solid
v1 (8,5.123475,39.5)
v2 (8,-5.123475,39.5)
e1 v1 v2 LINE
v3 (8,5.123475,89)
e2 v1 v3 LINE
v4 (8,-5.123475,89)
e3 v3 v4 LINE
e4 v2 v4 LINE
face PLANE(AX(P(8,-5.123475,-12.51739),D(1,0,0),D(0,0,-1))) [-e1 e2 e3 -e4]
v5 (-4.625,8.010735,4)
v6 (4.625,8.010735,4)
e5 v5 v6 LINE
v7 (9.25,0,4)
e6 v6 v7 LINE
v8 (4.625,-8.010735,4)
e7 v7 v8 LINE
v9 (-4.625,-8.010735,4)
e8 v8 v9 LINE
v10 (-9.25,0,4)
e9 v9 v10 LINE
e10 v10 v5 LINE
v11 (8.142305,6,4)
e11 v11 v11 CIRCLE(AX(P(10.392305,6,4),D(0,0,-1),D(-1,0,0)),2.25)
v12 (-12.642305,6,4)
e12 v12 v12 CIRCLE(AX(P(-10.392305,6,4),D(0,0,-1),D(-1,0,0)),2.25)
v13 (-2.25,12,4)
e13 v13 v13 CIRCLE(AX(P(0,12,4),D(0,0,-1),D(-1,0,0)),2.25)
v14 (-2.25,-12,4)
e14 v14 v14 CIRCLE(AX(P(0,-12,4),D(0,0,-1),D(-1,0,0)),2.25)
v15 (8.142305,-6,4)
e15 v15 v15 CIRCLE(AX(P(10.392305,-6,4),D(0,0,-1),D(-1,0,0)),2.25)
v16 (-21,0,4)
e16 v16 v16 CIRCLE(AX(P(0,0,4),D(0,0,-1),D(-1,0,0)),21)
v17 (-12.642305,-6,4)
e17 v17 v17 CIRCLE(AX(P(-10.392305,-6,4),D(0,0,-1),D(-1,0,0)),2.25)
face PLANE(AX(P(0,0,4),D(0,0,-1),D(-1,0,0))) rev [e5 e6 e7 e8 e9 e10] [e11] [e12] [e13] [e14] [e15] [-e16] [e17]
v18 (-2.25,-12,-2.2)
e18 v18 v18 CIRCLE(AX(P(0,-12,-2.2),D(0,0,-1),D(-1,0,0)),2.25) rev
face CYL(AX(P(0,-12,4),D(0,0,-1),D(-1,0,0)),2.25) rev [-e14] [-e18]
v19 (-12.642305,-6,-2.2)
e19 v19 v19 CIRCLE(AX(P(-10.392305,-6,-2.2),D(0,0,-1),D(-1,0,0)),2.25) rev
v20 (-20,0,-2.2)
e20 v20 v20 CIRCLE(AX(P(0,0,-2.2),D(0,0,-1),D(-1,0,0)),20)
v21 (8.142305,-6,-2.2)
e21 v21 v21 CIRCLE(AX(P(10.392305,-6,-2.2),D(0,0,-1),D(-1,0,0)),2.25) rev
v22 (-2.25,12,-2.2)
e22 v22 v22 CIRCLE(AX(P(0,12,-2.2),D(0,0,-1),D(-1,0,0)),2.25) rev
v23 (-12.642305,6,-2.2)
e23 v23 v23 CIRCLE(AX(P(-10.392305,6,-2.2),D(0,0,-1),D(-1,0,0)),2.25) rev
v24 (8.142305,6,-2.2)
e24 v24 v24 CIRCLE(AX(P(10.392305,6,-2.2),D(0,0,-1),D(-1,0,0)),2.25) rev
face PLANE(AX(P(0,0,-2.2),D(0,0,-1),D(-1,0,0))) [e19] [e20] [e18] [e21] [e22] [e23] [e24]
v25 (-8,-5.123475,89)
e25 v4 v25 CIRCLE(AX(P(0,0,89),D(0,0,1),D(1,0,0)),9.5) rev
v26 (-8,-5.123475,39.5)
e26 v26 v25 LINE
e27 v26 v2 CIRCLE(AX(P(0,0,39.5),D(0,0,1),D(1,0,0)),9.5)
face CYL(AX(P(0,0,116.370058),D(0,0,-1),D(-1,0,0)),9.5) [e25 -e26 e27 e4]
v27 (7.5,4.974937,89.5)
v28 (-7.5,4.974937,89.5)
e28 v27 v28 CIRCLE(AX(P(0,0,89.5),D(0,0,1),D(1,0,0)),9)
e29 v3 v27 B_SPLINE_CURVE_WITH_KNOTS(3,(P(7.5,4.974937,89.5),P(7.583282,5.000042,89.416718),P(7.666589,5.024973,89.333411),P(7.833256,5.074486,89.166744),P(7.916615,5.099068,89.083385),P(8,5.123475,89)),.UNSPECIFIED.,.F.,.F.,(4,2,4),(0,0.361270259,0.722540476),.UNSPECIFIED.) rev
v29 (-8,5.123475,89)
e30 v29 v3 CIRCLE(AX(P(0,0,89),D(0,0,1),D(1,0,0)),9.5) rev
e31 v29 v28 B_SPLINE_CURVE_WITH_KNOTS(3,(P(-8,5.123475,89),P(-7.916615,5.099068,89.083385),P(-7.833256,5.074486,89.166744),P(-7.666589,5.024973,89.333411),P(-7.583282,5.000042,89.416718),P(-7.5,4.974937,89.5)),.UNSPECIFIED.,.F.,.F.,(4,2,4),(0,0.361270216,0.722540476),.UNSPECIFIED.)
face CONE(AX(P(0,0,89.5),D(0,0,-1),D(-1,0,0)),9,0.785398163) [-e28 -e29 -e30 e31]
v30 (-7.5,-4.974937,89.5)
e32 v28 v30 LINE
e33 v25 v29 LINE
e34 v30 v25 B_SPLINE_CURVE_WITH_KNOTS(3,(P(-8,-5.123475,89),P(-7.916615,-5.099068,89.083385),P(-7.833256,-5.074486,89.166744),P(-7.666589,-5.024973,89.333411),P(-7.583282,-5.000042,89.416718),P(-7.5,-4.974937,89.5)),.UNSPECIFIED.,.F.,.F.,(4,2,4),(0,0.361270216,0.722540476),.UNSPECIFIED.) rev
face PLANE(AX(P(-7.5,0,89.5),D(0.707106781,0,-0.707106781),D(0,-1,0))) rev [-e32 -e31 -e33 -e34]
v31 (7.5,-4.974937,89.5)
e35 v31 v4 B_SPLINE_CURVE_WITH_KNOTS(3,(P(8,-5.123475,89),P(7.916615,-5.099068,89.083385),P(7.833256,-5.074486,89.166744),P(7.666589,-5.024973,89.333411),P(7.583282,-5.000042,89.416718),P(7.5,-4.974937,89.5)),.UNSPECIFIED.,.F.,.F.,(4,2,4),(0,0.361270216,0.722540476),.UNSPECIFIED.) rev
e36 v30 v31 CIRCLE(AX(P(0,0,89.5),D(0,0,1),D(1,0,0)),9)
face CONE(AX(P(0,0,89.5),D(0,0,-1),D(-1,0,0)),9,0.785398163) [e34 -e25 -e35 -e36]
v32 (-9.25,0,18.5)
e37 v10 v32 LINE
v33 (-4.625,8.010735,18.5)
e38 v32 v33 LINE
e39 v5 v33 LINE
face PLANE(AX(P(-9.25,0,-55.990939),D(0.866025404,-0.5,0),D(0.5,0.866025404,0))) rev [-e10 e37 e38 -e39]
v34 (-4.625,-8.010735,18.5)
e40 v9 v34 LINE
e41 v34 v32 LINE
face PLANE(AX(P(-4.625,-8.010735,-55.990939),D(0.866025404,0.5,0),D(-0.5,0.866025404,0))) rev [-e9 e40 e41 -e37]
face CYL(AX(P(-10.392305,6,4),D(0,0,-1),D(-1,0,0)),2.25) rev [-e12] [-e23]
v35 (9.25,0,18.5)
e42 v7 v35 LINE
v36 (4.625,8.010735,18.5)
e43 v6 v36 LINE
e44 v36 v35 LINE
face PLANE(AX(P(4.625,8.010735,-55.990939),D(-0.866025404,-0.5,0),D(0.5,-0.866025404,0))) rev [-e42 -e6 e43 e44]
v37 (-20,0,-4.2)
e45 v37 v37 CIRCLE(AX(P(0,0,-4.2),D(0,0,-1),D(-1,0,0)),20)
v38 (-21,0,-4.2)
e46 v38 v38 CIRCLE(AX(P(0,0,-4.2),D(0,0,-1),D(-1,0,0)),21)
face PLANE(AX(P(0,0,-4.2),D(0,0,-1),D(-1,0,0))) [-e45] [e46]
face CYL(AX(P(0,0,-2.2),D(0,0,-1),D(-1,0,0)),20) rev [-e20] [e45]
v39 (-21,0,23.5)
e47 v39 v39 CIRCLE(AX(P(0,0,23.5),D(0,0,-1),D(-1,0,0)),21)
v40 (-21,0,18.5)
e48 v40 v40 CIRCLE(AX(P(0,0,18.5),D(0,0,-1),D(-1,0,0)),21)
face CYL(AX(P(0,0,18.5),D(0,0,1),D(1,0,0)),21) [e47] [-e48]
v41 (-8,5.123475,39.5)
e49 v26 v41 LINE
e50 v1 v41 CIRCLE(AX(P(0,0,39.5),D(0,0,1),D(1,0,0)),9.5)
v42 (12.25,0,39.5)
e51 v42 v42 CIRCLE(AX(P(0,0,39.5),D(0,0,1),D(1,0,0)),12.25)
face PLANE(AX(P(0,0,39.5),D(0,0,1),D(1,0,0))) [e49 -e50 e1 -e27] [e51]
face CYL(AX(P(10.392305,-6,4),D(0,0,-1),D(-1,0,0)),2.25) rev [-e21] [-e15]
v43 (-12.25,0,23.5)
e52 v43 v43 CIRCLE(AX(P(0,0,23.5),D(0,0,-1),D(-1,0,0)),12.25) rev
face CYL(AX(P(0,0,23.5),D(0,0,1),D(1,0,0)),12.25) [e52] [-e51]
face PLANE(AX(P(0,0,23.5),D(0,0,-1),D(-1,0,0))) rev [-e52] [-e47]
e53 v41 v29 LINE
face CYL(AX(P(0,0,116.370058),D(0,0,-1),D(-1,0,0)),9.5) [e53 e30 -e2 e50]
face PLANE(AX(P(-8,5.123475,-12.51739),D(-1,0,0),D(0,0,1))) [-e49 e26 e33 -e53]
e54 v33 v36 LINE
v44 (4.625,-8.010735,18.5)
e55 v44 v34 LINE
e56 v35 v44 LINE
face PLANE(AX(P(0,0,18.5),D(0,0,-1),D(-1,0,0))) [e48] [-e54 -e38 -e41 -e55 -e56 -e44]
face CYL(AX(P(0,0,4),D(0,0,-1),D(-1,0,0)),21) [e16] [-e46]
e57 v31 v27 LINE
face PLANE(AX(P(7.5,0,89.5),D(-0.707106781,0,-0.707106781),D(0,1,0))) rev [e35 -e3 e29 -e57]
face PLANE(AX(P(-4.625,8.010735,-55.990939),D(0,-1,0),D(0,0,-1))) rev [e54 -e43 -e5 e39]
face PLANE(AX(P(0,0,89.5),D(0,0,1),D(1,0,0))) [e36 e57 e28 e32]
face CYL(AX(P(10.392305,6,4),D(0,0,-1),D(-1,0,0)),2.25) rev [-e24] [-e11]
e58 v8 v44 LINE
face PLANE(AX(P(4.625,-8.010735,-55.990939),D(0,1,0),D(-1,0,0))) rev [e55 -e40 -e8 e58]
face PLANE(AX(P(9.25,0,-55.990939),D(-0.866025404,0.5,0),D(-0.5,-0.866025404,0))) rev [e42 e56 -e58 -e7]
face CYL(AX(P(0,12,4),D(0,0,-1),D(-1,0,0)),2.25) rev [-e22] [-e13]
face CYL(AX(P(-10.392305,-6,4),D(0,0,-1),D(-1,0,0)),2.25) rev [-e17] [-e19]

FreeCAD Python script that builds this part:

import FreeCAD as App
import Part
import Sketcher
from FreeCAD import Vector
Q = App.Units.Quantity


def edges_at(feature, points):
    """Names of the edges that pass closest to the given points."""
    edges = feature.Shape.Edges
    near = lambda p: min(range(len(edges)), key=lambda i: edges[i].distToShape(Part.Vertex(*p))[0])
    return sorted({f"Edge{near(p) + 1}" for p in points})


def add_polygon(sketch, points):
    """Adds a closed chain of lines whose ends are joined by coincident constraints."""
    first, n = sketch.GeometryCount, len(points)
    for a, b in zip(points, points[1:] + points[:1]):
        sketch.addGeometry(Part.LineSegment(App.Vector(*a, 0), App.Vector(*b, 0)), False)
    for i in range(n):
        sketch.addConstraint(Sketcher.Constraint("Coincident", first + i, 2, first + (i + 1) % n, 1))

doc = App.newDocument("Part")
body = doc.addObject("PartDesign::Body", "Body")

# Sketch on XY plane
sketch1 = body.newObject("Sketcher::SketchObject", "Sketch")
sketch1.AttachmentSupport = (doc.getObject("XY_Plane"), [""])
sketch1.MapMode = "FlatFace"
sketch1.addGeometry(Part.Circle(Vector(0, 0, 0), Vector(0, 0, 1), 9), False)
sketch1.addConstraint([
    Sketcher.Constraint("Coincident", 0, 3, -1, 1),
    Sketcher.Constraint("Diameter", 0, 18.5),
])
pad1 = body.newObject("PartDesign::Pad", "Pad")
pad1.Profile = sketch1
pad1.Length = 89.5

# Sketch on XY plane
sketch2 = body.newObject("Sketcher::SketchObject", "Sketch001")
sketch2.AttachmentSupport = (doc.getObject("XY_Plane"), [""])
sketch2.MapMode = "FlatFace"
sketch2.AttachmentOffset = App.Placement(Vector(0, 0, 39.5), App.Rotation())
sketch2.addGeometry(Part.Circle(Vector(0, 0, 0), Vector(0, 0, 1), 12), False)
sketch2.addConstraint([
    Sketcher.Constraint("Coincident", 0, 3, -1, 1),
    Sketcher.Constraint("Diameter", 0, 24.5),
])
pad2 = body.newObject("PartDesign::Pad", "Pad001")
pad2.Profile = sketch2
pad2.Length = 16
pad2.Reversed = True

# Sketch on XY plane
sketch3 = body.newObject("Sketcher::SketchObject", "Sketch002")
sketch3.AttachmentSupport = (doc.getObject("XY_Plane"), [""])
sketch3.MapMode = "FlatFace"
sketch3.AttachmentOffset = App.Placement(Vector(0, 0, 23.5), App.Rotation())
sketch3.addGeometry(Part.Circle(Vector(0, 0, 0), Vector(0, 0, 1), 21), False)
sketch3.addConstraint([
    Sketcher.Constraint("Coincident", 0, 3, -1, 1),
    Sketcher.Constraint("Diameter", 0, 42.0),
])
pad3 = body.newObject("PartDesign::Pad", "Pad002")
pad3.Profile = sketch3
pad3.Length = 5
pad3.Reversed = True

# Sketch on XY plane
sketch4 = body.newObject("Sketcher::SketchObject", "Sketch003")
sketch4.AttachmentSupport = (doc.getObject("XY_Plane"), [""])
sketch4.MapMode = "FlatFace"
sketch4.addGeometry([
    Part.Circle(Vector(0, 0, 0), Vector(0, 0, 1), 21),  # 0
    Part.Circle(Vector(0, -12, 0), Vector(0, 0, 1), 2.2),  # 1
    Part.Circle(Vector(10.4, -6, 0), Vector(0, 0, 1), 2.2),  # 2
    Part.Circle(Vector(-10.4, -6, 0), Vector(0, 0, 1), 2.2),  # 3
    Part.Circle(Vector(10.4, 6, 0), Vector(0, 0, 1), 2.2),  # 4
    Part.Circle(Vector(0, 12, 0), Vector(0, 0, 1), 2.2),  # 5
    Part.Circle(Vector(-10.4, 6, 0), Vector(0, 0, 1), 2.2),  # 6
], False)
sketch4.addConstraint([
    Sketcher.Constraint("Coincident", 0, 3, -1, 1),
    Sketcher.Constraint("Equal", 1, 2),
    Sketcher.Constraint("Equal", 2, 3),
    Sketcher.Constraint("Equal", 3, 4),
    Sketcher.Constraint("Equal", 4, 5),
    Sketcher.Constraint("Equal", 5, 6),
    Sketcher.Constraint("Symmetric", 3, 3, 4, 3, -1, 1),
    Sketcher.Constraint("Symmetric", 1, 3, 5, 3, -1, 1),
    Sketcher.Constraint("Symmetric", 2, 3, 6, 3, -1, 1),
    Sketcher.Constraint("Symmetric", 2, 3, 3, 3, -2),
    Sketcher.Constraint("PointOnObject", 1, 3, -2),
    Sketcher.Constraint("Diameter", 0, 42.0),
    Sketcher.Constraint("Diameter", 1, 4.5),
    Sketcher.Constraint("DistanceY", 1, 3, -1, 1, 12.0),
    Sketcher.Constraint("DistanceY", 2, 3, -1, 1, 6.0),
    Sketcher.Constraint("DistanceX", 3, 3, 2, 3, 20.78461),
])
pad4 = body.newObject("PartDesign::Pad", "Pad003")
pad4.Profile = sketch4
pad4.Type = "TwoLengths"
pad4.Length = 4.2
pad4.Length2 = 4
pad4.Reversed = True

# Sketch on XY plane
sketch5 = body.newObject("Sketcher::SketchObject", "Sketch004")
sketch5.AttachmentSupport = (doc.getObject("XY_Plane"), [""])
sketch5.MapMode = "FlatFace"
sketch5.AttachmentOffset = App.Placement(Vector(0, 0, -4.2), App.Rotation())
sketch5.addGeometry(Part.Circle(Vector(0, 0, 0), Vector(0, 0, 1), 20), False)
sketch5.addConstraint([
    Sketcher.Constraint("Coincident", 0, 3, -1, 1),
    Sketcher.Constraint("Diameter", 0, 40.0),
])
pocket1 = body.newObject("PartDesign::Pocket", "Pocket")
pocket1.Profile = sketch5
pocket1.Length = 2
pocket1.Reversed = True

# Sketch on XY plane
sketch6 = body.newObject("Sketcher::SketchObject", "Sketch005")
sketch6.AttachmentSupport = (doc.getObject("XY_Plane"), [""])
sketch6.MapMode = "FlatFace"
sketch6.AttachmentOffset = App.Placement(Vector(0, 0, 18.5), App.Rotation())
add_polygon(sketch6, [(33, 33), (33, -33), (-33, -33), (-33, 33)])  # lines 0-3
add_polygon(sketch6, [(5, -8), (9, 0), (5, 8), (-5, 8), (-9, 0), (-5, -8)])  # lines 4-9
sketch6.addConstraint([
    Sketcher.Constraint("Vertical", 0),
    Sketcher.Constraint("Horizontal", 1),
    Sketcher.Constraint("Vertical", 2),
    Sketcher.Constraint("Horizontal", 3),
    Sketcher.Constraint("Horizontal", 6),
    Sketcher.Constraint("Horizontal", 9),
    Sketcher.Constraint("Symmetric", 0, 2, 2, 2, -1, 1),
    Sketcher.Constraint("Symmetric", 4, 2, 7, 2, -1, 1),
    Sketcher.Constraint("Symmetric", 5, 2, 8, 2, -1, 1),
    Sketcher.Constraint("PointOnObject", 4, 2, -1),
    Sketcher.Constraint("Parallel", 4, 7),
    Sketcher.Constraint("Vertical", 6, 2, 8, 2),
    Sketcher.Constraint("Equal", 3, 0),
    Sketcher.Constraint("Angle", 4, Q("60 deg")),
    Sketcher.Constraint("DistanceX", 6, 2, 6, 1, 9.25),
    Sketcher.Constraint("DistanceX", 7, 2, 4, 2, 18.5),
    Sketcher.Constraint("DistanceX", 1, 2, 1, 1, 66.188),
])
pocket2 = body.newObject("PartDesign::Pocket", "Pocket001")
pocket2.Profile = sketch6
pocket2.Length = 14.5

# Sketch on XY plane
sketch7 = body.newObject("Sketcher::SketchObject", "Sketch006")
sketch7.AttachmentSupport = (doc.getObject("XY_Plane"), [""])
sketch7.MapMode = "FlatFace"
sketch7.AttachmentOffset = App.Placement(Vector(0, 0, 39.5), App.Rotation())
sketch7.addGeometry(Part.Circle(Vector(0, 0, 0), Vector(0, 0, 1), 10), False)
sketch7.addConstraint([
    Sketcher.Constraint("Coincident", 0, 3, -1, 1),
    Sketcher.Constraint("Diameter", 0, 19.0),
])
pad5 = body.newObject("PartDesign::Pad", "Pad004")
pad5.Profile = sketch7
pad5.Length = 50

# Sketch on XY plane
sketch8 = body.newObject("Sketcher::SketchObject", "Sketch007")
sketch8.AttachmentSupport = (doc.getObject("XY_Plane"), [""])
sketch8.MapMode = "FlatFace"
sketch8.AttachmentOffset = App.Placement(Vector(0, 0, 89.5), App.Rotation())
add_polygon(sketch8, [(-18, 5), (-18, -5), (-8, -5), (-8, 5)])  # lines 0-3
add_polygon(sketch8, [(8, 5), (8, -5), (18, -5), (18, 5)])  # lines 4-7
sketch8.addConstraint([
    Sketcher.Constraint("Vertical", 0),
    Sketcher.Constraint("Horizontal", 1),
    Sketcher.Constraint("Vertical", 2),
    Sketcher.Constraint("Horizontal", 3),
    Sketcher.Constraint("Vertical", 4),
    Sketcher.Constraint("Horizontal", 5),
    Sketcher.Constraint("Vertical", 6),
    Sketcher.Constraint("Horizontal", 7),
    Sketcher.Constraint("Symmetric", 2, 2, 4, 2, -1, 1),
    Sketcher.Constraint("Symmetric", 0, 2, 6, 2, -1, 1),
    Sketcher.Constraint("Horizontal", 1, 2, 4, 2),
    Sketcher.Constraint("DistanceX", 1, 1, 1, 2, 10.0),
    Sketcher.Constraint("DistanceX", 0, 2, -1, 1, 18.0),
    Sketcher.Constraint("DistanceY", 0, 2, 0, 1, 10.246951),
])
pocket3 = body.newObject("PartDesign::Pocket", "Pocket002")
pocket3.Profile = sketch8
pocket3.Length = 50
doc.recompute()

chamfer = body.newObject("PartDesign::Chamfer", "Chamfer")
chamfer.Base = (pocket3, edges_at(pocket3, [
    (8, 0, 89.5),
    (0, -9.5, 89.5),
    (-8, 0, 89.5),
    (0, 9.5, 89.5),
]))
chamfer.Size = 0.5

doc.recompute()
